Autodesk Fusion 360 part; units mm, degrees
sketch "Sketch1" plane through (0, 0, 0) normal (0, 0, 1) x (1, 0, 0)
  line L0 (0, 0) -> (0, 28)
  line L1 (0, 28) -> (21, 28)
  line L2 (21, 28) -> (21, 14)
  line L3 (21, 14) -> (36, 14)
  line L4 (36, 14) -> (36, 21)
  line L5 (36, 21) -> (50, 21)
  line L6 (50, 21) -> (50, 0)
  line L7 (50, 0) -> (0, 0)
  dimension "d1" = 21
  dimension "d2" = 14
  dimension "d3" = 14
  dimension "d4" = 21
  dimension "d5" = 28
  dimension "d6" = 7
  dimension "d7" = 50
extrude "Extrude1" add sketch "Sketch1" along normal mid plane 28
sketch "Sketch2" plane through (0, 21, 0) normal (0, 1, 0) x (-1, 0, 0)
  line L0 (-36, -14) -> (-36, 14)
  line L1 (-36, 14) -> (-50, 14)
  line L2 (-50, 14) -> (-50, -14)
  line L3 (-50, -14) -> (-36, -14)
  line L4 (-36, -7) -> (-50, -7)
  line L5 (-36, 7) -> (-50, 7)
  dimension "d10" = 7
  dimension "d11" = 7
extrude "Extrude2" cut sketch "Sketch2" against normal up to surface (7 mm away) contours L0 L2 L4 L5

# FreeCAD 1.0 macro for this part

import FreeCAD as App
import Part
import Sketcher
from FreeCAD import Vector
Q = App.Units.Quantity

doc = App.newDocument("Part")
params = doc.addObject("Spreadsheet::Sheet", "Params")
for row, (alias, value) in enumerate([
    ("sketch1_width", "50 mm"),
    ("sketch1_width2", "14 mm"),
    ("sketch1_width3", "21 mm"),
    ("sketch1_height", "28 mm"),
    ("pad1_length", "28 mm"),
    ("pocket1_length", "7 mm"),
], start=1):
    params.set(f"A{row}", alias)
    params.set(f"B{row}", "=" + value)
    params.setAlias(f"B{row}", alias)

body = doc.addObject("PartDesign::Body", "Body")

# Sketch on XY plane
sketch1 = body.newObject("Sketcher::SketchObject", "Sketch")
sketch1.AttachmentSupport = (doc.getObject("XY_Plane"), [""])
sketch1.MapMode = "FlatFace"
sketch1.addGeometry([
    Part.LineSegment(Vector(0, 28, 0), Vector(0, 0, 0)),  # 0
    Part.LineSegment(Vector(0, 0, 0), Vector(50, 0, 0)),  # 1
    Part.LineSegment(Vector(50, 0, 0), Vector(50, 21, 0)),  # 2
    Part.LineSegment(Vector(50, 21, 0), Vector(36, 21, 0)),  # 3
    Part.LineSegment(Vector(36, 21, 0), Vector(36, 14, 0)),  # 4
    Part.LineSegment(Vector(36, 14, 0), Vector(21, 14, 0)),  # 5
    Part.LineSegment(Vector(21, 14, 0), Vector(21, 28, 0)),  # 6
    Part.LineSegment(Vector(21, 28, 0), Vector(0, 28, 0)),  # 7
], False)
sketch1.addConstraint([
    Sketcher.Constraint("Coincident", 0, 2, 1, 1),
    Sketcher.Constraint("Coincident", 1, 2, 2, 1),
    Sketcher.Constraint("Coincident", 2, 2, 3, 1),
    Sketcher.Constraint("Coincident", 3, 2, 4, 1),
    Sketcher.Constraint("Coincident", 4, 2, 5, 1),
    Sketcher.Constraint("Coincident", 5, 2, 6, 1),
    Sketcher.Constraint("Coincident", 6, 2, 7, 1),
    Sketcher.Constraint("Coincident", 7, 2, 0, 1),
    Sketcher.Constraint("Vertical", 0),
    Sketcher.Constraint("Horizontal", 1),
    Sketcher.Constraint("Vertical", 2),
    Sketcher.Constraint("Horizontal", 3),
    Sketcher.Constraint("Vertical", 4),
    Sketcher.Constraint("Horizontal", 5),
    Sketcher.Constraint("Vertical", 6),
    Sketcher.Constraint("Horizontal", 7),
    Sketcher.Constraint("Coincident", 0, 2, -1, 1),
    Sketcher.Constraint("Equal", 7, 2),
    Sketcher.Constraint("Equal", 3, 6),
    Sketcher.Constraint("DistanceX", 1, 1, 1, 2, Q("50 mm")),
    Sketcher.Constraint("DistanceX", 3, 2, 3, 1, Q("14 mm")),
    Sketcher.Constraint("DistanceX", 7, 2, 7, 1, Q("21 mm")),
    Sketcher.Constraint("DistanceY", 0, 2, 0, 1, Q("28 mm")),
])
sketch1.setExpression("Constraints[19]", "Params.sketch1_width")
sketch1.setExpression("Constraints[20]", "Params.sketch1_width2")
sketch1.setExpression("Constraints[21]", "Params.sketch1_width3")
sketch1.setExpression("Constraints[22]", "Params.sketch1_height")
pad1 = body.newObject("PartDesign::Pad", "Pad")
pad1.Profile = sketch1
pad1.setExpression("Length", "Params.pad1_length")
pad1.Midplane = True

# Sketch on XZ plane
sketch2 = body.newObject("Sketcher::SketchObject", "Sketch001")
sketch2.AttachmentSupport = (doc.getObject("XZ_Plane"), [""])
sketch2.MapMode = "FlatFace"
sketch2.AttachmentOffset = App.Placement(Vector(0, 0, -21), App.Rotation())
sketch2.addGeometry([
    Part.LineSegment(Vector(50, -7, 0), Vector(36, -7, 0)),
    Part.LineSegment(Vector(36, -7, 0), Vector(36, 7, 0)),
    Part.LineSegment(Vector(36, 7, 0), Vector(50, 7, 0)),
    Part.LineSegment(Vector(50, 7, 0), Vector(50, -7, 0)),
], False)
sketch2.addConstraint([
    Sketcher.Constraint("Coincident", 0, 2, 1, 1),
    Sketcher.Constraint("Coincident", 1, 2, 2, 1),
    Sketcher.Constraint("Coincident", 2, 2, 3, 1),
    Sketcher.Constraint("Coincident", 3, 2, 0, 1),
    Sketcher.Constraint("Horizontal", 0),
    Sketcher.Constraint("Vertical", 1),
    Sketcher.Constraint("Horizontal", 2),
    Sketcher.Constraint("Vertical", 3),
    Sketcher.Constraint("Equal", 2, 1),
    Sketcher.Constraint("DistanceY", 0, 2, -1, 1, Q("7 mm")),
    Sketcher.Constraint("DistanceY", -1, 1, 1, 2, Q("7 mm")),
    Sketcher.Constraint("DistanceX", -1, 1, 0, 2, Q("36 mm")),
])
pocket1 = body.newObject("PartDesign::Pocket", "Pocket")
pocket1.Profile = sketch2
pocket1.setExpression("Length", "Params.pocket1_length")
pocket1.Reversed = True

doc.recompute()
